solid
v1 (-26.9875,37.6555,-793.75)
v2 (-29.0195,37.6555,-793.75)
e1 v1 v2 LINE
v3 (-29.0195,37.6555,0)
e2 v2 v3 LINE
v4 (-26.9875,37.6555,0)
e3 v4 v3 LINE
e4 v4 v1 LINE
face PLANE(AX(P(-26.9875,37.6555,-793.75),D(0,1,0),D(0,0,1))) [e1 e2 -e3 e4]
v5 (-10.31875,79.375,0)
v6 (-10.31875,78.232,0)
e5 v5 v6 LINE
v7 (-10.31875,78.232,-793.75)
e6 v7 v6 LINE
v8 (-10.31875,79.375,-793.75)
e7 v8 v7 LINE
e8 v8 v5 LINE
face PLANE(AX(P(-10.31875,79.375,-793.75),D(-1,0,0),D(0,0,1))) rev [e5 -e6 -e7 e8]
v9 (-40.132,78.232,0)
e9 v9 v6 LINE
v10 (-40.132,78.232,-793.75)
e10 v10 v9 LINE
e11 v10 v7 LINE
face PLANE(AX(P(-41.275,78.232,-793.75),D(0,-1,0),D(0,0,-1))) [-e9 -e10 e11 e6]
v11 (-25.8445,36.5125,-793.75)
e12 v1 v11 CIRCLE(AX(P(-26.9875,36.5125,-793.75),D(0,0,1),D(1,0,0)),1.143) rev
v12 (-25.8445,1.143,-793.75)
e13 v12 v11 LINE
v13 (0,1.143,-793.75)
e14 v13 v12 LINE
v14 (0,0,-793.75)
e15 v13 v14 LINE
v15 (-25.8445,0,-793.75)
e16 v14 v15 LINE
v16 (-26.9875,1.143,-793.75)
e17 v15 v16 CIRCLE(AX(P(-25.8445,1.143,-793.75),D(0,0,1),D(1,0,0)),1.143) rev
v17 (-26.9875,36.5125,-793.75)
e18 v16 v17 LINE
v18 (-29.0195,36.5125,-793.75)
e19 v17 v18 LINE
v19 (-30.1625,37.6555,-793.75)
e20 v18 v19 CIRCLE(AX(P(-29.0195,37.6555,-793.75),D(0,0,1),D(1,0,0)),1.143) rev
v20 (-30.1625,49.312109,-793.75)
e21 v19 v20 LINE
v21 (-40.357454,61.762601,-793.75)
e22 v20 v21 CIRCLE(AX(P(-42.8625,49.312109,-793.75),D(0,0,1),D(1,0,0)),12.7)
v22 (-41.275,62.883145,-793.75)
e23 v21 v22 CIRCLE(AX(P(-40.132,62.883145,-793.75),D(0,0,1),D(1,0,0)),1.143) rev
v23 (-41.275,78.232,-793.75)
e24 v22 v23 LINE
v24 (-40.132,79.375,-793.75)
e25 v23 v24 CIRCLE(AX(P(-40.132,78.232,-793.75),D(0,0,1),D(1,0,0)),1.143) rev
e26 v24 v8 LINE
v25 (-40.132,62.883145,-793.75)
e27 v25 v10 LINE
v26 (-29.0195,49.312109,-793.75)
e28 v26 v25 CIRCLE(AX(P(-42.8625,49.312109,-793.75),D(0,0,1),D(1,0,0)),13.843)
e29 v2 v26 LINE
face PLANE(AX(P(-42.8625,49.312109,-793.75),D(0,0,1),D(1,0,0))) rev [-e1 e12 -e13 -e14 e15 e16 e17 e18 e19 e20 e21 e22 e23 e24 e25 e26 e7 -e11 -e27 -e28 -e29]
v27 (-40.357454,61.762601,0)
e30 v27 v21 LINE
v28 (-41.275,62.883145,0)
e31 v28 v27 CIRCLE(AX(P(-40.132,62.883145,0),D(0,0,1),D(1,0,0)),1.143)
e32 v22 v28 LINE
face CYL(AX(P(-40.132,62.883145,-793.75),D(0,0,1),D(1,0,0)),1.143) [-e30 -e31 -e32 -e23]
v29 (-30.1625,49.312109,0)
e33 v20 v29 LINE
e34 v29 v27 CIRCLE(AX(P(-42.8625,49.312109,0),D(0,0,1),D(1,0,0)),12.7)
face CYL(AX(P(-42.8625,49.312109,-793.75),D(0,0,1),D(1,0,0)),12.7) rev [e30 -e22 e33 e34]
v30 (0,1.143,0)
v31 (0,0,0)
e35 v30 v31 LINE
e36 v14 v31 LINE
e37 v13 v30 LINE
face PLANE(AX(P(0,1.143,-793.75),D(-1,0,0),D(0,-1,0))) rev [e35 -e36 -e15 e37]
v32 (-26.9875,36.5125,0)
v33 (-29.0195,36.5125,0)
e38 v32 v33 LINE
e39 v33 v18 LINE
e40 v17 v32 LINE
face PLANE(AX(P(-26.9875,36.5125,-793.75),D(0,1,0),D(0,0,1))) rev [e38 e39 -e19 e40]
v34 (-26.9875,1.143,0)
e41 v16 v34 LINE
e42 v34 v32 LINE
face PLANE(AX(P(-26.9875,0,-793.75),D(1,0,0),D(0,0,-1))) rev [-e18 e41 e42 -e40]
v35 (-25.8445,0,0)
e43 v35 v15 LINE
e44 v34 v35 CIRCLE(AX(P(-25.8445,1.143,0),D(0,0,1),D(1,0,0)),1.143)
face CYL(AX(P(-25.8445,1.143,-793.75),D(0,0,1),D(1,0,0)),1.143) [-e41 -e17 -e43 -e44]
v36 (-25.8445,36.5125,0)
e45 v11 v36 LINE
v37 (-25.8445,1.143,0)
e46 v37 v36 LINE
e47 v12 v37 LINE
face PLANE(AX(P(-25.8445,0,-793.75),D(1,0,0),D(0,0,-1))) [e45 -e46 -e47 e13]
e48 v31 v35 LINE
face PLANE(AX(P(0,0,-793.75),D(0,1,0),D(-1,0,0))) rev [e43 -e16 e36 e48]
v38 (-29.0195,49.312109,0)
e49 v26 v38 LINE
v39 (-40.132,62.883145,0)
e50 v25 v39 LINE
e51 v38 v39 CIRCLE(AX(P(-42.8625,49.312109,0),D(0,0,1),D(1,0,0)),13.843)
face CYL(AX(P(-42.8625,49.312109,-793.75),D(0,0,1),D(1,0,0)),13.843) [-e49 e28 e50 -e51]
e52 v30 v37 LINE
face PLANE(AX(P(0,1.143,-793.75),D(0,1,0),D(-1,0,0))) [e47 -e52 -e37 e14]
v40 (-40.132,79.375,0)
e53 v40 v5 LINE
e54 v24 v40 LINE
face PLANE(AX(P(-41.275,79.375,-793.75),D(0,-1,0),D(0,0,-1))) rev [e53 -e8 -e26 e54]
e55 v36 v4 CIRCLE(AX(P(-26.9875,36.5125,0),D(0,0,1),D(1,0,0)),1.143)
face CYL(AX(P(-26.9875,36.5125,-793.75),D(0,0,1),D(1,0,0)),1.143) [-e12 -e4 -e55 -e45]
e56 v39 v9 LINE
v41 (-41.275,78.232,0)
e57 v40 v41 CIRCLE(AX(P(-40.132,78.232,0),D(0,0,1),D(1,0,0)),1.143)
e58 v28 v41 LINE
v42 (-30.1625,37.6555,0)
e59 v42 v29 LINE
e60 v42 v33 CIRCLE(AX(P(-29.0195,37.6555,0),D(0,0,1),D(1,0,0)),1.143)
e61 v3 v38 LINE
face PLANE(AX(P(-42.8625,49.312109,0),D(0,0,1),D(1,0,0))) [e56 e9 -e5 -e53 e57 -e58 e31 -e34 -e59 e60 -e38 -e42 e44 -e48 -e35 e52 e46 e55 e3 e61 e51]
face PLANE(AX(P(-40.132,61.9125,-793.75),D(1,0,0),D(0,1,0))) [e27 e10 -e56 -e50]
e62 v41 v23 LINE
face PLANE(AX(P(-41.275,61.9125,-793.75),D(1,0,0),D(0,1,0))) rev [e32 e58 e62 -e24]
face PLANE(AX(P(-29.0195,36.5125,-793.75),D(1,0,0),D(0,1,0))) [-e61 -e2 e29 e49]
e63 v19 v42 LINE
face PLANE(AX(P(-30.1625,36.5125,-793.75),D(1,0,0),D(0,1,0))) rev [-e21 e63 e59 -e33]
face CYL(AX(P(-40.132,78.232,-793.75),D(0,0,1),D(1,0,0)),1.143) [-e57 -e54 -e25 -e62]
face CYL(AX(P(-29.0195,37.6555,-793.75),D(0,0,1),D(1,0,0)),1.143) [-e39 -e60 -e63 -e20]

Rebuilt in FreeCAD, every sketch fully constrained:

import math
import FreeCAD as App
import Part
import Sketcher
Q = App.Units.Quantity


def edges_at(feature, points):
    """Names of the edges that pass closest to the given points."""
    edges = feature.Shape.Edges
    near = lambda p: min(range(len(edges)), key=lambda i: edges[i].distToShape(Part.Vertex(*p))[0])
    return sorted({f"Edge{near(p) + 1}" for p in points})

doc = App.newDocument("Part")
params = doc.addObject("Spreadsheet::Sheet", "Params")
for row, (alias, value) in enumerate([
    ("sketch1_radius", "0.5 in"),
    ("sketch1_radius2", "0.545 in"),
    ("sketch1_width", "1.0625 in"),
    ("sketch1_width2", "0.125 in"),
    ("sketch1_width3", "1.21875 in"),
    ("pad1_length", "31.25 in"),
    ("fillet_radius", "0.045 in"),
], start=1):
    params.set(f"A{row}", alias)
    params.set(f"B{row}", "=" + value)
    params.setAlias(f"B{row}", alias)

body = doc.addObject("PartDesign::Body", "Body")

sketch1 = body.newObject("Sketcher::SketchObject", "Sketch")
sketch1.AttachmentSupport = (doc.getObject("XY_Plane"), [""])
sketch1.MapMode = "FlatFace"
sketch1.addGeometry(Part.LineSegment(App.Vector(-27, 0, 0), App.Vector(0, 0, 0)), False)
sketch1.addGeometry(Part.LineSegment(App.Vector(0, 0, 0), App.Vector(0, 1.1, 0)), False)
sketch1.addGeometry(Part.LineSegment(App.Vector(0, 1.1, 0), App.Vector(-25.8, 1.1, 0)), False)
sketch1.addGeometry(Part.LineSegment(App.Vector(-25.8, 1.1, 0), App.Vector(-25.8, 37.7, 0)), False)
sketch1.addGeometry(Part.LineSegment(App.Vector(-25.8, 37.7, 0), App.Vector(-29, 37.7, 0)), False)
sketch1.addGeometry(Part.LineSegment(App.Vector(-29, 37.7, 0), App.Vector(-29, 49.3, 0)), False)
sketch1.addGeometry(Part.ArcOfCircle(Part.Circle(App.Vector(-42.9, 49.3, 0), App.Vector(0, 0, 1), 13.8), math.radians(0), math.radians(79)), False)
sketch1.addGeometry(Part.LineSegment(App.Vector(-40.1, 62.9, 0), App.Vector(-40.1, 78.2, 0)), False)
sketch1.addGeometry(Part.LineSegment(App.Vector(-40.1, 78.2, 0), App.Vector(-10.3, 78.2, 0)), False)
sketch1.addGeometry(Part.LineSegment(App.Vector(-10.3, 78.2, 0), App.Vector(-10.3, 79.4, 0)), False)
sketch1.addGeometry(Part.LineSegment(App.Vector(-10.3, 79.4, 0), App.Vector(-41.3, 79.4, 0)), False)
sketch1.addGeometry(Part.LineSegment(App.Vector(-41.3, 79.4, 0), App.Vector(-41.3, 61.9, 0)), False)
sketch1.addGeometry(Part.ArcOfCircle(Part.Circle(App.Vector(-42.9, 49.3, 0), App.Vector(0, 0, 1), 12.7), math.radians(0), math.radians(83)), False)
sketch1.addGeometry(Part.LineSegment(App.Vector(-30.2, 49.3, 0), App.Vector(-30.2, 36.5, 0)), False)
sketch1.addGeometry(Part.LineSegment(App.Vector(-30.2, 36.5, 0), App.Vector(-27, 36.5, 0)), False)
sketch1.addGeometry(Part.LineSegment(App.Vector(-27, 36.5, 0), App.Vector(-27, 0, 0)), False)
sketch1.addConstraint(Sketcher.Constraint("Coincident", 0, 2, 1, 1))
sketch1.addConstraint(Sketcher.Constraint("Coincident", 1, 2, 2, 1))
sketch1.addConstraint(Sketcher.Constraint("Coincident", 2, 2, 3, 1))
sketch1.addConstraint(Sketcher.Constraint("Coincident", 3, 2, 4, 1))
sketch1.addConstraint(Sketcher.Constraint("Coincident", 4, 2, 5, 1))
sketch1.addConstraint(Sketcher.Constraint("Tangent", 5, 2, 6, 1))
sketch1.addConstraint(Sketcher.Constraint("Coincident", 6, 2, 7, 1))
sketch1.addConstraint(Sketcher.Constraint("Coincident", 7, 2, 8, 1))
sketch1.addConstraint(Sketcher.Constraint("Coincident", 8, 2, 9, 1))
sketch1.addConstraint(Sketcher.Constraint("Coincident", 9, 2, 10, 1))
sketch1.addConstraint(Sketcher.Constraint("Coincident", 10, 2, 11, 1))
sketch1.addConstraint(Sketcher.Constraint("Coincident", 11, 2, 12, 2))
sketch1.addConstraint(Sketcher.Constraint("Tangent", 12, 1, 13, 1))
sketch1.addConstraint(Sketcher.Constraint("Coincident", 13, 2, 14, 1))
sketch1.addConstraint(Sketcher.Constraint("Coincident", 14, 2, 15, 1))
sketch1.addConstraint(Sketcher.Constraint("Coincident", 15, 2, 0, 1))
sketch1.addConstraint(Sketcher.Constraint("Horizontal", 0))
sketch1.addConstraint(Sketcher.Constraint("Vertical", 1))
sketch1.addConstraint(Sketcher.Constraint("Horizontal", 2))
sketch1.addConstraint(Sketcher.Constraint("Vertical", 3))
sketch1.addConstraint(Sketcher.Constraint("Horizontal", 4))
sketch1.addConstraint(Sketcher.Constraint("Vertical", 5))
sketch1.addConstraint(Sketcher.Constraint("Vertical", 7))
sketch1.addConstraint(Sketcher.Constraint("Horizontal", 8))
sketch1.addConstraint(Sketcher.Constraint("Vertical", 9))
sketch1.addConstraint(Sketcher.Constraint("Horizontal", 10))
sketch1.addConstraint(Sketcher.Constraint("Vertical", 11))
sketch1.addConstraint(Sketcher.Constraint("Vertical", 13))
sketch1.addConstraint(Sketcher.Constraint("Horizontal", 14))
sketch1.addConstraint(Sketcher.Constraint("Vertical", 15))
sketch1.addConstraint(Sketcher.Constraint("Coincident", 0, 2, -1, 1))
sketch1.addConstraint(Sketcher.Constraint("Coincident", 12, 3, 6, 3))
sketch1.addConstraint(Sketcher.Constraint("Equal", 4, 14))
sketch1.addConstraint(Sketcher.Constraint("Equal", 1, 9))
sketch1.addConstraint(Sketcher.Constraint("Equal", 3, 15))
sketch1.addConstraint(Sketcher.Constraint("Radius", 12, Q("0.5 in")))
sketch1.addConstraint(Sketcher.Constraint("Radius", 6, Q("0.545 in")))
sketch1.addConstraint(Sketcher.Constraint("DistanceX", 0, 1, 0, 2, Q("1.0625 in")))
sketch1.addConstraint(Sketcher.Constraint("DistanceX", 4, 2, 4, 1, Q("0.125 in")))
sketch1.addConstraint(Sketcher.Constraint("DistanceX", 10, 2, 10, 1, Q("1.21875 in")))
sketch1.addConstraint(Sketcher.Constraint("DistanceY", 1, 1, 1, 2, Q("0.045 in")))
sketch1.addConstraint(Sketcher.Constraint("DistanceY", 3, 1, 3, 2, Q("1.4375 in")))
sketch1.addConstraint(Sketcher.Constraint("DistanceY", 11, 2, 11, 1, Q("0.6875 in")))
sketch1.addConstraint(Sketcher.Constraint("DistanceX", 6, 2, -1, 1, Q("1.58 in")))
sketch1.addConstraint(Sketcher.Constraint("DistanceY", -1, 1, 7, 2, Q("3.08 in")))
sketch1.addConstraint(Sketcher.Constraint("DistanceX", 8, 2, -1, 1, Q("0.40625 in")))
sketch1.setExpression("Constraints[35]", "Params.sketch1_radius")
sketch1.setExpression("Constraints[36]", "Params.sketch1_radius2")
sketch1.setExpression("Constraints[37]", "Params.sketch1_width")
sketch1.setExpression("Constraints[38]", "Params.sketch1_width2")
sketch1.setExpression("Constraints[39]", "Params.sketch1_width3")
pad1 = body.newObject("PartDesign::Pad", "Pad")
pad1.Profile = sketch1
pad1.setExpression("Length", "Params.pad1_length")
pad1.Reversed = True
doc.recompute()

fillet = body.newObject("PartDesign::Fillet", "Fillet")
fillet.Base = (pad1, edges_at(pad1, [
    (-25.845, 37.656, -396.875),
    (-26.988, 0, -396.875),
    (-30.163, 36.513, -396.875),
    (-41.275, 61.913, -396.875),
    (-41.275, 79.375, -396.875),
]))
fillet.setExpression("Radius", "Params.fillet_radius")

doc.recompute()
